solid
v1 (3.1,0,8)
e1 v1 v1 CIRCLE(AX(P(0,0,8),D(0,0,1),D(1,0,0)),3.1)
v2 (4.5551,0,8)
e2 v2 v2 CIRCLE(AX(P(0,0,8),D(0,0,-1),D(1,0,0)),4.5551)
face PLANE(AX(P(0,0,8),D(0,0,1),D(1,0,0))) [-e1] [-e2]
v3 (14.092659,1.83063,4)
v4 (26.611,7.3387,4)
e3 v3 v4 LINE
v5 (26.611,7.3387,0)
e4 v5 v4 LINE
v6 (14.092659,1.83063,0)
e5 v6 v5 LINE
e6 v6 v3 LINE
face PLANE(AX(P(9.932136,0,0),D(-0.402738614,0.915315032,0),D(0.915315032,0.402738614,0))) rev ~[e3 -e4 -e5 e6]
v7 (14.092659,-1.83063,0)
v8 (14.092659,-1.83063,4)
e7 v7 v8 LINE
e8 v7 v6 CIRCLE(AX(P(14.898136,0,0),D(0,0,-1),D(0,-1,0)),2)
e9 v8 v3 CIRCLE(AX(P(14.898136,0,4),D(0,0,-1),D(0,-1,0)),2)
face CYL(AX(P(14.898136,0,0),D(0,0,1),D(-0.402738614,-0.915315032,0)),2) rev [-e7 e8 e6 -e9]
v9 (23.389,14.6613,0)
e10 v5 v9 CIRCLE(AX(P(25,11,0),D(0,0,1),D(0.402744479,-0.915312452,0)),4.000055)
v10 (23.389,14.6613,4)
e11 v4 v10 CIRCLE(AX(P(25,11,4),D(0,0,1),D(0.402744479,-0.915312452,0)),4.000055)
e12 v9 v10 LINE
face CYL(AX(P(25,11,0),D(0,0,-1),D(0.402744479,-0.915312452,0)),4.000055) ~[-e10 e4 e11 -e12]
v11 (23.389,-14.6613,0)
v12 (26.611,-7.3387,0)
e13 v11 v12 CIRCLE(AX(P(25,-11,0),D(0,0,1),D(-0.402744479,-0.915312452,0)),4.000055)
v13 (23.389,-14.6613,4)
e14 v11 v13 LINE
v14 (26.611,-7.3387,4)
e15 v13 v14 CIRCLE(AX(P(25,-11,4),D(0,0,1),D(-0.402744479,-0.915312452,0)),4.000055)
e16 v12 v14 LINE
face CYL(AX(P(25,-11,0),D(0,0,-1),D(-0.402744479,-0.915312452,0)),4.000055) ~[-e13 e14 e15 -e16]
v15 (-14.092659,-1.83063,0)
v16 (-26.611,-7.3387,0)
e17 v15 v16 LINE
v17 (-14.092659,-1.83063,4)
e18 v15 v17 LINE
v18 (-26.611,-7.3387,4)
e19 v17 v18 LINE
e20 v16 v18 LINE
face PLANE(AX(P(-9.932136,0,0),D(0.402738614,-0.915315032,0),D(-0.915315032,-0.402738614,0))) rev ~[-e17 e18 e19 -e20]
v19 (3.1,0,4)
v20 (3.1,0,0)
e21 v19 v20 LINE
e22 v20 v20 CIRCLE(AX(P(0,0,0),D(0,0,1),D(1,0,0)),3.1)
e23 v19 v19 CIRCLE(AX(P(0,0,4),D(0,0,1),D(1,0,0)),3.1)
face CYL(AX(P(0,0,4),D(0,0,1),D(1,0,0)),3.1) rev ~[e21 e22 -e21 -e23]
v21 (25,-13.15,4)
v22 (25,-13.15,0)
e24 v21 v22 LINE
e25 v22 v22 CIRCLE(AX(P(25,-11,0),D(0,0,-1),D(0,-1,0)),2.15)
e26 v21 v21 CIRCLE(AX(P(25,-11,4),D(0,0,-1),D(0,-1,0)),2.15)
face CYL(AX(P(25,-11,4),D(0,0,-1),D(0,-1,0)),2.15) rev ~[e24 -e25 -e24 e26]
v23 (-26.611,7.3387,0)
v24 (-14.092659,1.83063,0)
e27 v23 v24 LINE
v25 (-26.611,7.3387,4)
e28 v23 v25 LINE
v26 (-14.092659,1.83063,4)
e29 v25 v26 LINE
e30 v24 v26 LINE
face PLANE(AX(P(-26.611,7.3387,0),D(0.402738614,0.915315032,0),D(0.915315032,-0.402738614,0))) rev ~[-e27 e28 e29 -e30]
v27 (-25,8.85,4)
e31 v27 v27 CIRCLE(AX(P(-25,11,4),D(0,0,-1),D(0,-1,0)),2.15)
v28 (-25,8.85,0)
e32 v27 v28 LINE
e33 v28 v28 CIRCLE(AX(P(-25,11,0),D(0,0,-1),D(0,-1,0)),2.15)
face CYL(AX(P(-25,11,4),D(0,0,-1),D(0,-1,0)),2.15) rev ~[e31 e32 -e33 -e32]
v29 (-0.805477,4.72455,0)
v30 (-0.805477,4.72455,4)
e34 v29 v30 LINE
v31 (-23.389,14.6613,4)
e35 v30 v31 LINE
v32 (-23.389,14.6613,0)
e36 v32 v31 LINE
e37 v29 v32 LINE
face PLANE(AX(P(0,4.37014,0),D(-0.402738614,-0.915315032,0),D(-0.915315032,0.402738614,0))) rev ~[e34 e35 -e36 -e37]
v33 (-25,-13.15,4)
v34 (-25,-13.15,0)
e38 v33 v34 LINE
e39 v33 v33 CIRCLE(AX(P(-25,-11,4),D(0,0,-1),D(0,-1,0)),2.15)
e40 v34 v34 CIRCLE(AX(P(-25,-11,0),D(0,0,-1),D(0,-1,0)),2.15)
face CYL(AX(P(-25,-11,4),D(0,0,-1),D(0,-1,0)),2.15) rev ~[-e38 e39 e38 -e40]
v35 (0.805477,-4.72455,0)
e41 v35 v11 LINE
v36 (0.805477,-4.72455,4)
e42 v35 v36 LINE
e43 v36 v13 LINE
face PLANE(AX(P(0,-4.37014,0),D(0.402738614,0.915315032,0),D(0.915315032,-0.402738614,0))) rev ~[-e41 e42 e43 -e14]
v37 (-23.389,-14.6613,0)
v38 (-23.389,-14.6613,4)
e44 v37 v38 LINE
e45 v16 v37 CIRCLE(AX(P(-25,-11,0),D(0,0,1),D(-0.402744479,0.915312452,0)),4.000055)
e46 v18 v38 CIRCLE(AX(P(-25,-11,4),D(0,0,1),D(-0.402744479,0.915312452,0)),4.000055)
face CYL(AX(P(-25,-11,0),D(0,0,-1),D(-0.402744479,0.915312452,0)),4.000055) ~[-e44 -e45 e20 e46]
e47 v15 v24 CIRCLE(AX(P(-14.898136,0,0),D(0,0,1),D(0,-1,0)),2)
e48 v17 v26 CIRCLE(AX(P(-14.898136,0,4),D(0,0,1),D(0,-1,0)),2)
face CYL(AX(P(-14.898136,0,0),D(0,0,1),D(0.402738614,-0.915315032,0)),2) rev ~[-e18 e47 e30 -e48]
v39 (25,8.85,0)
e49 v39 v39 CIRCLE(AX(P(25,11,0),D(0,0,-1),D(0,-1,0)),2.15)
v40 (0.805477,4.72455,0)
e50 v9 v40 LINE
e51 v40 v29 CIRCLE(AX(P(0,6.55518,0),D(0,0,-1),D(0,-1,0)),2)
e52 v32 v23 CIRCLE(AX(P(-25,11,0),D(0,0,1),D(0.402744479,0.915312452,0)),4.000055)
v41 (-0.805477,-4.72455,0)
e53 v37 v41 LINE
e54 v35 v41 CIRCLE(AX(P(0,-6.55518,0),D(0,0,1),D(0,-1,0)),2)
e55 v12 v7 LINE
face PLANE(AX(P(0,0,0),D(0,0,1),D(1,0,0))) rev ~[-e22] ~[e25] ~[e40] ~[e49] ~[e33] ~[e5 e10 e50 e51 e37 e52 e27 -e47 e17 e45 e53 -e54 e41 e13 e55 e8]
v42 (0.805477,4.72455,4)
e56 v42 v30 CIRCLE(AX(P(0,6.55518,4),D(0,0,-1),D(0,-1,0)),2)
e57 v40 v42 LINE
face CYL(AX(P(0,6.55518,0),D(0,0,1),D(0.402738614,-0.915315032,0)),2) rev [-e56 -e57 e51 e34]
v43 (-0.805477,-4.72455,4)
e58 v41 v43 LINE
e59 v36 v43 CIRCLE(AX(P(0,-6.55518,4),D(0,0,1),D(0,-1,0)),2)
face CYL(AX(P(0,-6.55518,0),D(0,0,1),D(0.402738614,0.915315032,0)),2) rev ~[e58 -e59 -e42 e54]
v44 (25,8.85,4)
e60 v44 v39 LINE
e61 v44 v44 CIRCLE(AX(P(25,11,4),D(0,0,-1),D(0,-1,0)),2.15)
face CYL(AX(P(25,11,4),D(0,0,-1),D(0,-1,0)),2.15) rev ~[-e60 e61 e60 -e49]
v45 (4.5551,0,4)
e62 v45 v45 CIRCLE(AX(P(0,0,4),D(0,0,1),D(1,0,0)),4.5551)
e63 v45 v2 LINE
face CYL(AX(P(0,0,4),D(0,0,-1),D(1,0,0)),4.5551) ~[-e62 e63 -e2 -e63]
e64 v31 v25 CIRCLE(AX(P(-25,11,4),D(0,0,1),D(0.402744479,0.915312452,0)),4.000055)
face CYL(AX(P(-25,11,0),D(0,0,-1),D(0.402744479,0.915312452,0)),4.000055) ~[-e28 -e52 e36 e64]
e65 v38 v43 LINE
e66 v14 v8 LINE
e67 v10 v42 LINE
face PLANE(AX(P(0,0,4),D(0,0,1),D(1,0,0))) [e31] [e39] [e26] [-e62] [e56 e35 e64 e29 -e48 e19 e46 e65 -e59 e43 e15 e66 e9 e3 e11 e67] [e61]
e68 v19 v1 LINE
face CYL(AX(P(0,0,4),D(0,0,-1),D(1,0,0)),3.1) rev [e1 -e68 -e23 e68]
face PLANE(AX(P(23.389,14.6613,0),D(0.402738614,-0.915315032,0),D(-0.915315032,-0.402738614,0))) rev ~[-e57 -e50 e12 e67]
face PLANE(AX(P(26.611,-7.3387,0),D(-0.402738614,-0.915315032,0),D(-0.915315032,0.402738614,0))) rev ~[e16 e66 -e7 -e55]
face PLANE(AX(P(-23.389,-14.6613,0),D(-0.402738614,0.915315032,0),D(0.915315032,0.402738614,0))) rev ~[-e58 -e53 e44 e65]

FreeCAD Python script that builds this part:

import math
import FreeCAD as App
import Part
import Sketcher
from FreeCAD import Vector
Q = App.Units.Quantity


def edges_at(feature, points):
    """Names of the edges that pass closest to the given points."""
    edges = feature.Shape.Edges
    near = lambda p: min(range(len(edges)), key=lambda i: edges[i].distToShape(Part.Vertex(*p))[0])
    return sorted({f"Edge{near(p) + 1}" for p in points})

doc = App.newDocument("Part")
body = doc.addObject("PartDesign::Body", "Body")

# Sketch on XY plane
sketch1 = body.newObject("Sketcher::SketchObject", "Sketch")
sketch1.AttachmentSupport = (doc.getObject("XY_Plane"), [""])
sketch1.MapMode = "FlatFace"
sketch1.addGeometry([
    Part.ArcOfCircle(Part.Circle(Vector(25, -11, 0), Vector(0, 0, 1), 4), math.radians(-114), math.radians(66)),  # 0
    Part.LineSegment(Vector(26.6, -7.3, 0), Vector(9.9, 0, 0)),  # 1
    Part.LineSegment(Vector(9.9, 0, 0), Vector(26.6, 7.3, 0)),  # 2
    Part.ArcOfCircle(Part.Circle(Vector(25, 11, 0), Vector(0, 0, 1), 4), math.radians(-66), math.radians(114)),  # 3
    Part.LineSegment(Vector(23.4, 14.7, 0), Vector(0, 4.4, 0)),  # 4
    Part.LineSegment(Vector(0, 4.4, 0), Vector(-23.4, 14.7, 0)),  # 5
    Part.ArcOfCircle(Part.Circle(Vector(-25, 11, 0), Vector(0, 0, 1), 4), math.radians(66), math.radians(246)),  # 6
    Part.LineSegment(Vector(-26.6, 7.3, 0), Vector(-9.9, 0, 0)),  # 7
    Part.LineSegment(Vector(-9.9, 0, 0), Vector(-26.6, -7.3, 0)),  # 8
    Part.ArcOfCircle(Part.Circle(Vector(-25, -11, 0), Vector(0, 0, 1), 4), math.radians(114), math.radians(294)),  # 9
    Part.LineSegment(Vector(-23.4, -14.7, 0), Vector(0, -4.4, 0)),  # 10
    Part.LineSegment(Vector(0, -4.4, 0), Vector(23.4, -14.7, 0)),  # 11
], False)
sketch1.addConstraint([
    Sketcher.Constraint("Tangent", 0, 2, 1, 1),
    Sketcher.Constraint("Coincident", 1, 2, 2, 1),
    Sketcher.Constraint("Tangent", 2, 2, 3, 1),
    Sketcher.Constraint("Tangent", 3, 2, 4, 1),
    Sketcher.Constraint("Coincident", 4, 2, 5, 1),
    Sketcher.Constraint("Tangent", 5, 2, 6, 1),
    Sketcher.Constraint("Tangent", 6, 2, 7, 1),
    Sketcher.Constraint("Coincident", 7, 2, 8, 1),
    Sketcher.Constraint("Tangent", 8, 2, 9, 1),
    Sketcher.Constraint("Tangent", 9, 2, 10, 1),
    Sketcher.Constraint("Coincident", 10, 2, 11, 1),
    Sketcher.Constraint("Tangent", 11, 2, 0, 1),
    Sketcher.Constraint("Equal", 0, 3),
    Sketcher.Constraint("Equal", 3, 6),
    Sketcher.Constraint("Equal", 6, 9),
    Sketcher.Constraint("Symmetric", 0, 3, 6, 3, -1, 1),
    Sketcher.Constraint("Symmetric", 3, 3, 9, 3, -1, 1),
    Sketcher.Constraint("Symmetric", 1, 2, 7, 2, -1, 1),
    Sketcher.Constraint("Symmetric", 4, 2, 10, 2, -1, 1),
    Sketcher.Constraint("Symmetric", 3, 3, 6, 3, -2),
    Sketcher.Constraint("PointOnObject", 1, 2, -1),
    Sketcher.Constraint("PointOnObject", 4, 2, -2),
    Sketcher.Constraint("Parallel", 2, 4),
    Sketcher.Constraint("Radius", 0, 4.0),
    Sketcher.Constraint("DistanceY", 0, 3, 3, 3, 22.0),
    Sketcher.Constraint("DistanceX", 6, 3, 3, 3, 50.0),
    Sketcher.Constraint("Angle", 1, Q("156.2505 deg")),
])
pad1 = body.newObject("PartDesign::Pad", "Pad")
pad1.Profile = sketch1
pad1.Length = 4
doc.recompute()

fillet = body.newObject("PartDesign::Fillet", "Fillet")
fillet.Base = (pad1, edges_at(pad1, [
    (0, -4.37, 2),
    (-9.932, 0, 2),
    (0, 4.37, 2),
    (9.932, 0, 2),
]))
fillet.Radius = 2

# Sketch on XY plane
sketch2 = body.newObject("Sketcher::SketchObject", "Sketch001")
sketch2.AttachmentSupport = (doc.getObject("XY_Plane"), [""])
sketch2.MapMode = "FlatFace"
sketch2.AttachmentOffset = App.Placement(Vector(0, 0, 4), App.Rotation())
sketch2.addGeometry([
    Part.Circle(Vector(-25, 11, 0), Vector(0, 0, 1), 2.1),
    Part.Circle(Vector(25, 11, 0), Vector(0, 0, 1), 2.1),
    Part.Circle(Vector(25, -11, 0), Vector(0, 0, 1), 2.1),
    Part.Circle(Vector(-25, -11, 0), Vector(0, 0, 1), 2.1),
], False)
sketch2.addConstraint([
    Sketcher.Constraint("Equal", 0, 1),
    Sketcher.Constraint("Equal", 1, 2),
    Sketcher.Constraint("Equal", 2, 3),
    Sketcher.Constraint("Symmetric", 0, 3, 2, 3, -1, 1),
    Sketcher.Constraint("Symmetric", 1, 3, 3, 3, -1, 1),
    Sketcher.Constraint("Symmetric", 0, 3, 1, 3, -2),
    Sketcher.Constraint("Diameter", 0, 4.3),
    Sketcher.Constraint("DistanceX", 0, 3, -1, 1, 25.0),
    Sketcher.Constraint("DistanceY", -1, 1, 0, 3, 11.0),
])
doc.recompute()
hole = body.newObject("PartDesign::Hole", "Hole")
hole.Profile = sketch2
hole.ThreadType = "None"
hole.Diameter = 4.3
hole.DepthType = "ThroughAll"

# Sketch on XY plane
sketch3 = body.newObject("Sketcher::SketchObject", "Sketch002")
sketch3.AttachmentSupport = (doc.getObject("XY_Plane"), [""])
sketch3.MapMode = "FlatFace"
sketch3.AttachmentOffset = App.Placement(Vector(0, 0, 4), App.Rotation())
sketch3.addGeometry(Part.Circle(Vector(0, 0, 0), Vector(0, 0, 1), 3.1), False)
sketch3.addConstraint([
    Sketcher.Constraint("Coincident", 0, 3, -1, 1),
    Sketcher.Constraint("Diameter", 0, 6.2),
])
pocket1 = body.newObject("PartDesign::Pocket", "Pocket")
pocket1.Profile = sketch3
pocket1.Length = 8

# Sketch on XY plane
sketch4 = body.newObject("Sketcher::SketchObject", "Sketch003")
sketch4.AttachmentSupport = (doc.getObject("XY_Plane"), [""])
sketch4.MapMode = "FlatFace"
sketch4.AttachmentOffset = App.Placement(Vector(0, 0, 4), App.Rotation())
sketch4.addGeometry([
    Part.Circle(Vector(0, 0, 0), Vector(0, 0, 1), 4.6),
    Part.Circle(Vector(0, 0, 0), Vector(0, 0, 1), 3.1),
], False)
sketch4.addConstraint([
    Sketcher.Constraint("Coincident", 0, 3, -1, 1),
    Sketcher.Constraint("Coincident", 1, 3, -1, 1),
    Sketcher.Constraint("Diameter", 1, 6.2),
    Sketcher.Constraint("Diameter", 0, 9.1102),
])
pad2 = body.newObject("PartDesign::Pad", "Pad001")
pad2.Profile = sketch4
pad2.Length = 4

doc.recompute()
